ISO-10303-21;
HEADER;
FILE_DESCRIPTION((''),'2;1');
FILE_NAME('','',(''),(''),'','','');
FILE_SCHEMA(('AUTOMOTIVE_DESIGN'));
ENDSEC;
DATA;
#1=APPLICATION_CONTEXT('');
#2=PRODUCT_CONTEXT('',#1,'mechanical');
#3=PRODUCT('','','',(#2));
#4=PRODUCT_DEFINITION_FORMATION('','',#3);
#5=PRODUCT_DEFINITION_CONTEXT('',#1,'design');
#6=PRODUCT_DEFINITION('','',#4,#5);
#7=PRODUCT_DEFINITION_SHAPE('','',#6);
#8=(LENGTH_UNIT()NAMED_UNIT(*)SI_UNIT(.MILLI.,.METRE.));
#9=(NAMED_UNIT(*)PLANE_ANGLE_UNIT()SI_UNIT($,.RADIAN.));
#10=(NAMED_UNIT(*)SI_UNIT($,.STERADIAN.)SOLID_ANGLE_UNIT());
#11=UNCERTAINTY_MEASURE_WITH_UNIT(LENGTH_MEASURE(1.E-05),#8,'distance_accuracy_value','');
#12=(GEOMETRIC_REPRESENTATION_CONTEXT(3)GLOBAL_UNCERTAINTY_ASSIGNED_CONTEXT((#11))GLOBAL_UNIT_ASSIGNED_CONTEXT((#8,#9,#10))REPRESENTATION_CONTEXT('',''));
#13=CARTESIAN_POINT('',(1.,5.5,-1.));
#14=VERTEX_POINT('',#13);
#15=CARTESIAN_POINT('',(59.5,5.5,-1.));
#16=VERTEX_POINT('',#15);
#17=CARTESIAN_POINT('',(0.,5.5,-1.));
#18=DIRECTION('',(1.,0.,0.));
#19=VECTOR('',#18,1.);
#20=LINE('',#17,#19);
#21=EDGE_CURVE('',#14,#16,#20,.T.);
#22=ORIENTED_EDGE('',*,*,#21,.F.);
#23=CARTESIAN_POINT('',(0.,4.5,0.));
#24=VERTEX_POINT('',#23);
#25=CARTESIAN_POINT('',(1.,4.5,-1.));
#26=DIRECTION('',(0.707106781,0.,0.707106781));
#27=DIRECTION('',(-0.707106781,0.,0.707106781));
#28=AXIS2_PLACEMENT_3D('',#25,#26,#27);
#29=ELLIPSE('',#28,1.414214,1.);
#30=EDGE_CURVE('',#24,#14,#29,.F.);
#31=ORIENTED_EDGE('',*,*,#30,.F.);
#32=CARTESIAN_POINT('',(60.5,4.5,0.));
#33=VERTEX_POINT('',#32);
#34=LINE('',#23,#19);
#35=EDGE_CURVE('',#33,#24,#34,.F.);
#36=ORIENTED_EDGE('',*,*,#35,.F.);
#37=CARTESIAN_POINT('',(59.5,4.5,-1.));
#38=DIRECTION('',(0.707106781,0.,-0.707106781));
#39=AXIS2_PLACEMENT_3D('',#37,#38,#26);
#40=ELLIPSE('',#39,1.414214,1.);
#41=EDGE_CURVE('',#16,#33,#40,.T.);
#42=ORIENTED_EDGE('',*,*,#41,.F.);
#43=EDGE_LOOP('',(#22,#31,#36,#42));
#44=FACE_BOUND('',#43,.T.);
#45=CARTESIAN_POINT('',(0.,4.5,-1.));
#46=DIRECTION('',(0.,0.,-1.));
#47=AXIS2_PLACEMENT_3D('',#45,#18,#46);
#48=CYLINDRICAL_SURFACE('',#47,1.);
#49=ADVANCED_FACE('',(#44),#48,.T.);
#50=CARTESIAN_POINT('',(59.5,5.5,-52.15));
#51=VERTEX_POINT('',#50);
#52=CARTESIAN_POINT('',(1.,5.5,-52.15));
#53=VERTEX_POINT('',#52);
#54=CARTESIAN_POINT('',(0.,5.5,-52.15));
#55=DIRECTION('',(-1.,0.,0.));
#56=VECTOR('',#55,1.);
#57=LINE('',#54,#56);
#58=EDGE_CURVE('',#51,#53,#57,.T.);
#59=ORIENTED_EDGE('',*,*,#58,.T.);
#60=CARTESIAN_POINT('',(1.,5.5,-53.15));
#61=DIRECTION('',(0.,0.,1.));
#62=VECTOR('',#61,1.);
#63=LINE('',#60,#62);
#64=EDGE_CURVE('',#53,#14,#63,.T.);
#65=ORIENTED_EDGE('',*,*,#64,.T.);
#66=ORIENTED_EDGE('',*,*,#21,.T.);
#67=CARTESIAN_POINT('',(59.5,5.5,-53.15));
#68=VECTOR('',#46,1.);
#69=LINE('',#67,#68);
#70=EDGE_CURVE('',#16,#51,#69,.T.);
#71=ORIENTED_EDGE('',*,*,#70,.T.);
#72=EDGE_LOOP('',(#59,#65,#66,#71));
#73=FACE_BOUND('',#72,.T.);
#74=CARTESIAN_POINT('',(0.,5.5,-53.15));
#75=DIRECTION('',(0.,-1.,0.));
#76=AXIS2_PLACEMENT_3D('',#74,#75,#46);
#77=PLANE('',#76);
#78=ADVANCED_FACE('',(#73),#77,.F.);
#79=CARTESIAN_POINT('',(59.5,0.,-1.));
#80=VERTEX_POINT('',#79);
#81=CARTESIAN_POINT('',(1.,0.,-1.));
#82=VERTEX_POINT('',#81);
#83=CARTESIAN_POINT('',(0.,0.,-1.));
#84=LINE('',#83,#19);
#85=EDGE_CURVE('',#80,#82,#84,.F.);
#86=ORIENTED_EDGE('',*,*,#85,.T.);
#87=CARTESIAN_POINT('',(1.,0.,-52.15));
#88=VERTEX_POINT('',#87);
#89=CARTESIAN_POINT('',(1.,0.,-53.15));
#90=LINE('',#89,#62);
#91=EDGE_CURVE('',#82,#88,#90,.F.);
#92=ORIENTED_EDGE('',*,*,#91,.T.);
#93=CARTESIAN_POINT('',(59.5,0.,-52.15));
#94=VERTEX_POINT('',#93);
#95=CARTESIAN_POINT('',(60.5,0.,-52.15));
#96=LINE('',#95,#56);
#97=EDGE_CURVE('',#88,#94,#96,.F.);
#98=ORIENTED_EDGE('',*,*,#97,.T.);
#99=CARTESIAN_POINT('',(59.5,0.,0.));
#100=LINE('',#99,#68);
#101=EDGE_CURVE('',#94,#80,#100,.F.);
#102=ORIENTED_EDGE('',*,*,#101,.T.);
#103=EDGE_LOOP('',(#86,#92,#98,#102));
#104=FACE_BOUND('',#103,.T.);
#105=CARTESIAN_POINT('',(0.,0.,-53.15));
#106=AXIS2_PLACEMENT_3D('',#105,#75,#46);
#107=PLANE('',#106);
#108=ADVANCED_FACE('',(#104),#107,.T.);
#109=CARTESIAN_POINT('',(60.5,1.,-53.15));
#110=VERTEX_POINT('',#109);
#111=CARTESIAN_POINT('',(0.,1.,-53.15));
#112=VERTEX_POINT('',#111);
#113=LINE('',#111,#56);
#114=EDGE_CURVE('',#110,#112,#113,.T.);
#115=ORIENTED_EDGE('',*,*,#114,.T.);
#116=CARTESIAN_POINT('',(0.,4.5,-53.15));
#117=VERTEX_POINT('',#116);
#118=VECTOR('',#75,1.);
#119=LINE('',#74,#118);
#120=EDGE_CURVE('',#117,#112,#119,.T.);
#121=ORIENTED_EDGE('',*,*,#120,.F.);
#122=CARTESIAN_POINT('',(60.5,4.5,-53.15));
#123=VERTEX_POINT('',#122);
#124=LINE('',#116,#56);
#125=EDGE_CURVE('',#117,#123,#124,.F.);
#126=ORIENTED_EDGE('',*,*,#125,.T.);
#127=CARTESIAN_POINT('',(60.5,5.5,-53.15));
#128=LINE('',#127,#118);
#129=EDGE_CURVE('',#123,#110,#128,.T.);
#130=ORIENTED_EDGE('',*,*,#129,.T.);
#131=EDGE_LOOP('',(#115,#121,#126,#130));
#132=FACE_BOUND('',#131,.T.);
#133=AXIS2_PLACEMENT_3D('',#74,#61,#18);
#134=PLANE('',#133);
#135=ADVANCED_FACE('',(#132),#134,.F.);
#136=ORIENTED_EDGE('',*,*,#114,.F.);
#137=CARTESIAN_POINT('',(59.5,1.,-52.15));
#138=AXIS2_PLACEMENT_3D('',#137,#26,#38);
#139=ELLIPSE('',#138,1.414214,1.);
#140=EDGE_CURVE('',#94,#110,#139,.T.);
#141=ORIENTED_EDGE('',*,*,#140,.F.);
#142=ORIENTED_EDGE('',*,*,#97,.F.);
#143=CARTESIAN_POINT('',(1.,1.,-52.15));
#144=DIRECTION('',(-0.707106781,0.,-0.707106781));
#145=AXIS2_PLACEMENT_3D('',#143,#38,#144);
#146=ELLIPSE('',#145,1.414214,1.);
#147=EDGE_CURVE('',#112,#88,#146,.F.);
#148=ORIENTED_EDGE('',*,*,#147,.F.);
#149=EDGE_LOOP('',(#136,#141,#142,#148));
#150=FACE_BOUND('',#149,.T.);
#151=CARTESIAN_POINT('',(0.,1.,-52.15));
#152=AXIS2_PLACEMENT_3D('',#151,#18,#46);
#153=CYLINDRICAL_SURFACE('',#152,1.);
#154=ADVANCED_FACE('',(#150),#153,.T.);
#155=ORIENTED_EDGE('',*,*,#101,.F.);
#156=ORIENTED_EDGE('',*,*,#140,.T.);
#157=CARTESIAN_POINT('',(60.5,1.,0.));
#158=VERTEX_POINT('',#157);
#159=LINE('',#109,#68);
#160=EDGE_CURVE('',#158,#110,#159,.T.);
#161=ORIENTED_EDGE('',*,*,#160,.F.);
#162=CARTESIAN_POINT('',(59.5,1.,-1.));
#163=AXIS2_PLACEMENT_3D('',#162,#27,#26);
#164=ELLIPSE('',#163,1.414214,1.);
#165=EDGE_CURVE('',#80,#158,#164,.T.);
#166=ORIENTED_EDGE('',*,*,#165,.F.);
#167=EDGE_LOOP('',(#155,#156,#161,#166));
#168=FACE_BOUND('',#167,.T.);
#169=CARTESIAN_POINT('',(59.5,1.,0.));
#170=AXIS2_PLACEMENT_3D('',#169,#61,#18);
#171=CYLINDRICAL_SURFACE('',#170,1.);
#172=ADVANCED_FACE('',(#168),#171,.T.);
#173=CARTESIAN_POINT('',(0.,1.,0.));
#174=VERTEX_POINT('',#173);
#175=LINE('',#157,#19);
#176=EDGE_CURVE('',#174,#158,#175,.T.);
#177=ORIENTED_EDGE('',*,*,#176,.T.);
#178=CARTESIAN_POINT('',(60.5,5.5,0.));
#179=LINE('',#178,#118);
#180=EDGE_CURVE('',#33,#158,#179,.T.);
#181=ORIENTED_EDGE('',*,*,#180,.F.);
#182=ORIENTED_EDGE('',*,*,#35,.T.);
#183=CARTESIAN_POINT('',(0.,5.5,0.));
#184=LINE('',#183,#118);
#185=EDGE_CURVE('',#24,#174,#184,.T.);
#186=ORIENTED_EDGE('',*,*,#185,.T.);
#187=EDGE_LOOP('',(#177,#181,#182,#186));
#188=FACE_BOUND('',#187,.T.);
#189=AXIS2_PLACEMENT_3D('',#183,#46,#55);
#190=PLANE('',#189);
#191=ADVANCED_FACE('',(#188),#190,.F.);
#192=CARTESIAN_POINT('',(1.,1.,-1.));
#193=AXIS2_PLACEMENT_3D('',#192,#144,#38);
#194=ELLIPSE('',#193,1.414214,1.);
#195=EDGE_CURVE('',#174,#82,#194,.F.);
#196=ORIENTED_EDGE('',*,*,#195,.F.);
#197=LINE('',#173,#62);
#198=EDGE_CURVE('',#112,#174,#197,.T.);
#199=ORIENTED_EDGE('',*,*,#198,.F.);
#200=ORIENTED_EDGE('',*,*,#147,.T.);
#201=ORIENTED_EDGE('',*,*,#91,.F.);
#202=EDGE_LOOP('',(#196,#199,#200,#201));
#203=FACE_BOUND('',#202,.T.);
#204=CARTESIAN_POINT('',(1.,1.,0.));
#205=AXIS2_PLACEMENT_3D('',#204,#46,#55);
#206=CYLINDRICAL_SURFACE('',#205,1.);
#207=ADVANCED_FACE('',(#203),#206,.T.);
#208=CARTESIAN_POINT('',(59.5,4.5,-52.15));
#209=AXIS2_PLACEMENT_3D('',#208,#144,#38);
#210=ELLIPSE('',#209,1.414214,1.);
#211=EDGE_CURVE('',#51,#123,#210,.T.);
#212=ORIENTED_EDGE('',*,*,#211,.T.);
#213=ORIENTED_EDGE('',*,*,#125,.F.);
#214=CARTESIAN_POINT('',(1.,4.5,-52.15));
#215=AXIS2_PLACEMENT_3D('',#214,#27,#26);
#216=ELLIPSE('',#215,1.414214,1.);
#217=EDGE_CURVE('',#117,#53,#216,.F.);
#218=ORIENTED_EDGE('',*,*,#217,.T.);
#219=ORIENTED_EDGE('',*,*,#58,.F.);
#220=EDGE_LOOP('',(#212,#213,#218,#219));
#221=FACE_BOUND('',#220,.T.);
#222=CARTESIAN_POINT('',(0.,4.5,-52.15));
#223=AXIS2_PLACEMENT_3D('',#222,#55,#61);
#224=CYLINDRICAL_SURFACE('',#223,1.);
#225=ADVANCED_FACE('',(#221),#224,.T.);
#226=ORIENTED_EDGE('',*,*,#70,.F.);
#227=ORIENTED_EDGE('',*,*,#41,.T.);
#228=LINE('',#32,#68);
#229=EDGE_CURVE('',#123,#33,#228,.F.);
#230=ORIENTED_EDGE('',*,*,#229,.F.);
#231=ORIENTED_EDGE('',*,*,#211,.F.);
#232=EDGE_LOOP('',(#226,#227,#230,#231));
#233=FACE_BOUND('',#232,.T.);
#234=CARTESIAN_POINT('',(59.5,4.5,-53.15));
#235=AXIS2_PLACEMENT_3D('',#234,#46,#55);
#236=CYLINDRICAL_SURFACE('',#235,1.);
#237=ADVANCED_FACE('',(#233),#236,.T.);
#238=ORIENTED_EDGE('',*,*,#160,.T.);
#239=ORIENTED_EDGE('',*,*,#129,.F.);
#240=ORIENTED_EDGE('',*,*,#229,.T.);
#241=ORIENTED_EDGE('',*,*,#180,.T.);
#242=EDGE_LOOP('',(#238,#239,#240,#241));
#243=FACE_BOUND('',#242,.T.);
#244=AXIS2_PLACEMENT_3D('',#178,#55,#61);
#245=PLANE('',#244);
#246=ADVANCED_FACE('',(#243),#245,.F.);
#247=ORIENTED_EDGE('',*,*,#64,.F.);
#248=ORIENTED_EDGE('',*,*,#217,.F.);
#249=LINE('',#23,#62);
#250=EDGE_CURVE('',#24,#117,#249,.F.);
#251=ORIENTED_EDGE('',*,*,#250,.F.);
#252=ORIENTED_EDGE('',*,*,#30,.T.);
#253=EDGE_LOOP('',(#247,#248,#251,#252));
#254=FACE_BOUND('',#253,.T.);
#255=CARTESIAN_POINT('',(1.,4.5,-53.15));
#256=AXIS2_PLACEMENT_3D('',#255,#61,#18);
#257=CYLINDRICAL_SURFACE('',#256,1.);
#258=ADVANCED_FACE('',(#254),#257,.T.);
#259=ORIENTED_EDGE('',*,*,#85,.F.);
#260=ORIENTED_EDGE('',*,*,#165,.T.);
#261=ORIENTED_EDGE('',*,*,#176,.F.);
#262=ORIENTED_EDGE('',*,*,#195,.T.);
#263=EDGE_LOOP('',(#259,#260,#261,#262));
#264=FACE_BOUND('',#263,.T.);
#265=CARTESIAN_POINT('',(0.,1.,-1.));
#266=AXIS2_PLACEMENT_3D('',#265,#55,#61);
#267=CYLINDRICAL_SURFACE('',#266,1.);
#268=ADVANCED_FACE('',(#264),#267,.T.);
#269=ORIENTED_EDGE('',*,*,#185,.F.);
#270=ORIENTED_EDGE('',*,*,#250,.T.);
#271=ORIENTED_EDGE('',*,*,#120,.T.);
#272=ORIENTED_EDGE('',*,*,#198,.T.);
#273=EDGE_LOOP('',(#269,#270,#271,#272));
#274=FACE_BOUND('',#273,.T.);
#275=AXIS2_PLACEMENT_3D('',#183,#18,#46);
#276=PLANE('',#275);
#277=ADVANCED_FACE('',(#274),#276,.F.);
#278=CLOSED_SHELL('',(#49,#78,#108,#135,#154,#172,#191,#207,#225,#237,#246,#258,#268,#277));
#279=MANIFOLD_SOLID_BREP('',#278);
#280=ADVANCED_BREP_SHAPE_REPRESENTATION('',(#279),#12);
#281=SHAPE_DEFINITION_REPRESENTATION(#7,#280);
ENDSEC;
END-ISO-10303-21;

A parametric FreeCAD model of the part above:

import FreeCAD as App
import Part
import Sketcher


def edges_at(feature, points):
    """Names of the edges that pass closest to the given points."""
    edges = feature.Shape.Edges
    near = lambda p: min(range(len(edges)), key=lambda i: edges[i].distToShape(Part.Vertex(*p))[0])
    return sorted({f"Edge{near(p) + 1}" for p in points})


def add_polygon(sketch, points):
    """Adds a closed chain of lines whose ends are joined by coincident constraints."""
    first, n = sketch.GeometryCount, len(points)
    for a, b in zip(points, points[1:] + points[:1]):
        sketch.addGeometry(Part.LineSegment(App.Vector(*a, 0), App.Vector(*b, 0)), False)
    for i in range(n):
        sketch.addConstraint(Sketcher.Constraint("Coincident", first + i, 2, first + (i + 1) % n, 1))

doc = App.newDocument("Part")
body = doc.addObject("PartDesign::Body", "Body")

# Sketch on XZ plane
sketch1 = body.newObject("Sketcher::SketchObject", "Sketch")
sketch1.AttachmentSupport = (doc.getObject("XZ_Plane"), [""])
sketch1.MapMode = "FlatFace"
add_polygon(sketch1, [(0, -53), (0, 0), (60, 0), (60, -53)])  # lines 0-3
sketch1.addConstraint(Sketcher.Constraint("Vertical", 0))
sketch1.addConstraint(Sketcher.Constraint("Horizontal", 1))
sketch1.addConstraint(Sketcher.Constraint("Vertical", 2))
sketch1.addConstraint(Sketcher.Constraint("Horizontal", 3))
sketch1.addConstraint(Sketcher.Constraint("Coincident", 0, 2, -1, 1))
sketch1.addConstraint(Sketcher.Constraint("DistanceX", 1, 1, 1, 2, 60.5))
sketch1.addConstraint(Sketcher.Constraint("DistanceY", 0, 1, 0, 2, 53.15))
pad1 = body.newObject("PartDesign::Pad", "Pad")
pad1.Profile = sketch1
pad1.Length = 5.5
pad1.Reversed = True
doc.recompute()

fillet = body.newObject("PartDesign::Fillet", "Fillet")
fillet.Base = (pad1, edges_at(pad1, [
    (60.5, 5.5, -26.575),
    (30.25, 5.5, -53.15),
    (0, 5.5, -26.575),
    (30.25, 0, -53.15),
    (60.5, 0, -26.575),
    (30.25, 0, 0),
    (0, 0, -26.575),
    (30.25, 5.5, 0),
]))
fillet.Radius = 1

doc.recompute()
